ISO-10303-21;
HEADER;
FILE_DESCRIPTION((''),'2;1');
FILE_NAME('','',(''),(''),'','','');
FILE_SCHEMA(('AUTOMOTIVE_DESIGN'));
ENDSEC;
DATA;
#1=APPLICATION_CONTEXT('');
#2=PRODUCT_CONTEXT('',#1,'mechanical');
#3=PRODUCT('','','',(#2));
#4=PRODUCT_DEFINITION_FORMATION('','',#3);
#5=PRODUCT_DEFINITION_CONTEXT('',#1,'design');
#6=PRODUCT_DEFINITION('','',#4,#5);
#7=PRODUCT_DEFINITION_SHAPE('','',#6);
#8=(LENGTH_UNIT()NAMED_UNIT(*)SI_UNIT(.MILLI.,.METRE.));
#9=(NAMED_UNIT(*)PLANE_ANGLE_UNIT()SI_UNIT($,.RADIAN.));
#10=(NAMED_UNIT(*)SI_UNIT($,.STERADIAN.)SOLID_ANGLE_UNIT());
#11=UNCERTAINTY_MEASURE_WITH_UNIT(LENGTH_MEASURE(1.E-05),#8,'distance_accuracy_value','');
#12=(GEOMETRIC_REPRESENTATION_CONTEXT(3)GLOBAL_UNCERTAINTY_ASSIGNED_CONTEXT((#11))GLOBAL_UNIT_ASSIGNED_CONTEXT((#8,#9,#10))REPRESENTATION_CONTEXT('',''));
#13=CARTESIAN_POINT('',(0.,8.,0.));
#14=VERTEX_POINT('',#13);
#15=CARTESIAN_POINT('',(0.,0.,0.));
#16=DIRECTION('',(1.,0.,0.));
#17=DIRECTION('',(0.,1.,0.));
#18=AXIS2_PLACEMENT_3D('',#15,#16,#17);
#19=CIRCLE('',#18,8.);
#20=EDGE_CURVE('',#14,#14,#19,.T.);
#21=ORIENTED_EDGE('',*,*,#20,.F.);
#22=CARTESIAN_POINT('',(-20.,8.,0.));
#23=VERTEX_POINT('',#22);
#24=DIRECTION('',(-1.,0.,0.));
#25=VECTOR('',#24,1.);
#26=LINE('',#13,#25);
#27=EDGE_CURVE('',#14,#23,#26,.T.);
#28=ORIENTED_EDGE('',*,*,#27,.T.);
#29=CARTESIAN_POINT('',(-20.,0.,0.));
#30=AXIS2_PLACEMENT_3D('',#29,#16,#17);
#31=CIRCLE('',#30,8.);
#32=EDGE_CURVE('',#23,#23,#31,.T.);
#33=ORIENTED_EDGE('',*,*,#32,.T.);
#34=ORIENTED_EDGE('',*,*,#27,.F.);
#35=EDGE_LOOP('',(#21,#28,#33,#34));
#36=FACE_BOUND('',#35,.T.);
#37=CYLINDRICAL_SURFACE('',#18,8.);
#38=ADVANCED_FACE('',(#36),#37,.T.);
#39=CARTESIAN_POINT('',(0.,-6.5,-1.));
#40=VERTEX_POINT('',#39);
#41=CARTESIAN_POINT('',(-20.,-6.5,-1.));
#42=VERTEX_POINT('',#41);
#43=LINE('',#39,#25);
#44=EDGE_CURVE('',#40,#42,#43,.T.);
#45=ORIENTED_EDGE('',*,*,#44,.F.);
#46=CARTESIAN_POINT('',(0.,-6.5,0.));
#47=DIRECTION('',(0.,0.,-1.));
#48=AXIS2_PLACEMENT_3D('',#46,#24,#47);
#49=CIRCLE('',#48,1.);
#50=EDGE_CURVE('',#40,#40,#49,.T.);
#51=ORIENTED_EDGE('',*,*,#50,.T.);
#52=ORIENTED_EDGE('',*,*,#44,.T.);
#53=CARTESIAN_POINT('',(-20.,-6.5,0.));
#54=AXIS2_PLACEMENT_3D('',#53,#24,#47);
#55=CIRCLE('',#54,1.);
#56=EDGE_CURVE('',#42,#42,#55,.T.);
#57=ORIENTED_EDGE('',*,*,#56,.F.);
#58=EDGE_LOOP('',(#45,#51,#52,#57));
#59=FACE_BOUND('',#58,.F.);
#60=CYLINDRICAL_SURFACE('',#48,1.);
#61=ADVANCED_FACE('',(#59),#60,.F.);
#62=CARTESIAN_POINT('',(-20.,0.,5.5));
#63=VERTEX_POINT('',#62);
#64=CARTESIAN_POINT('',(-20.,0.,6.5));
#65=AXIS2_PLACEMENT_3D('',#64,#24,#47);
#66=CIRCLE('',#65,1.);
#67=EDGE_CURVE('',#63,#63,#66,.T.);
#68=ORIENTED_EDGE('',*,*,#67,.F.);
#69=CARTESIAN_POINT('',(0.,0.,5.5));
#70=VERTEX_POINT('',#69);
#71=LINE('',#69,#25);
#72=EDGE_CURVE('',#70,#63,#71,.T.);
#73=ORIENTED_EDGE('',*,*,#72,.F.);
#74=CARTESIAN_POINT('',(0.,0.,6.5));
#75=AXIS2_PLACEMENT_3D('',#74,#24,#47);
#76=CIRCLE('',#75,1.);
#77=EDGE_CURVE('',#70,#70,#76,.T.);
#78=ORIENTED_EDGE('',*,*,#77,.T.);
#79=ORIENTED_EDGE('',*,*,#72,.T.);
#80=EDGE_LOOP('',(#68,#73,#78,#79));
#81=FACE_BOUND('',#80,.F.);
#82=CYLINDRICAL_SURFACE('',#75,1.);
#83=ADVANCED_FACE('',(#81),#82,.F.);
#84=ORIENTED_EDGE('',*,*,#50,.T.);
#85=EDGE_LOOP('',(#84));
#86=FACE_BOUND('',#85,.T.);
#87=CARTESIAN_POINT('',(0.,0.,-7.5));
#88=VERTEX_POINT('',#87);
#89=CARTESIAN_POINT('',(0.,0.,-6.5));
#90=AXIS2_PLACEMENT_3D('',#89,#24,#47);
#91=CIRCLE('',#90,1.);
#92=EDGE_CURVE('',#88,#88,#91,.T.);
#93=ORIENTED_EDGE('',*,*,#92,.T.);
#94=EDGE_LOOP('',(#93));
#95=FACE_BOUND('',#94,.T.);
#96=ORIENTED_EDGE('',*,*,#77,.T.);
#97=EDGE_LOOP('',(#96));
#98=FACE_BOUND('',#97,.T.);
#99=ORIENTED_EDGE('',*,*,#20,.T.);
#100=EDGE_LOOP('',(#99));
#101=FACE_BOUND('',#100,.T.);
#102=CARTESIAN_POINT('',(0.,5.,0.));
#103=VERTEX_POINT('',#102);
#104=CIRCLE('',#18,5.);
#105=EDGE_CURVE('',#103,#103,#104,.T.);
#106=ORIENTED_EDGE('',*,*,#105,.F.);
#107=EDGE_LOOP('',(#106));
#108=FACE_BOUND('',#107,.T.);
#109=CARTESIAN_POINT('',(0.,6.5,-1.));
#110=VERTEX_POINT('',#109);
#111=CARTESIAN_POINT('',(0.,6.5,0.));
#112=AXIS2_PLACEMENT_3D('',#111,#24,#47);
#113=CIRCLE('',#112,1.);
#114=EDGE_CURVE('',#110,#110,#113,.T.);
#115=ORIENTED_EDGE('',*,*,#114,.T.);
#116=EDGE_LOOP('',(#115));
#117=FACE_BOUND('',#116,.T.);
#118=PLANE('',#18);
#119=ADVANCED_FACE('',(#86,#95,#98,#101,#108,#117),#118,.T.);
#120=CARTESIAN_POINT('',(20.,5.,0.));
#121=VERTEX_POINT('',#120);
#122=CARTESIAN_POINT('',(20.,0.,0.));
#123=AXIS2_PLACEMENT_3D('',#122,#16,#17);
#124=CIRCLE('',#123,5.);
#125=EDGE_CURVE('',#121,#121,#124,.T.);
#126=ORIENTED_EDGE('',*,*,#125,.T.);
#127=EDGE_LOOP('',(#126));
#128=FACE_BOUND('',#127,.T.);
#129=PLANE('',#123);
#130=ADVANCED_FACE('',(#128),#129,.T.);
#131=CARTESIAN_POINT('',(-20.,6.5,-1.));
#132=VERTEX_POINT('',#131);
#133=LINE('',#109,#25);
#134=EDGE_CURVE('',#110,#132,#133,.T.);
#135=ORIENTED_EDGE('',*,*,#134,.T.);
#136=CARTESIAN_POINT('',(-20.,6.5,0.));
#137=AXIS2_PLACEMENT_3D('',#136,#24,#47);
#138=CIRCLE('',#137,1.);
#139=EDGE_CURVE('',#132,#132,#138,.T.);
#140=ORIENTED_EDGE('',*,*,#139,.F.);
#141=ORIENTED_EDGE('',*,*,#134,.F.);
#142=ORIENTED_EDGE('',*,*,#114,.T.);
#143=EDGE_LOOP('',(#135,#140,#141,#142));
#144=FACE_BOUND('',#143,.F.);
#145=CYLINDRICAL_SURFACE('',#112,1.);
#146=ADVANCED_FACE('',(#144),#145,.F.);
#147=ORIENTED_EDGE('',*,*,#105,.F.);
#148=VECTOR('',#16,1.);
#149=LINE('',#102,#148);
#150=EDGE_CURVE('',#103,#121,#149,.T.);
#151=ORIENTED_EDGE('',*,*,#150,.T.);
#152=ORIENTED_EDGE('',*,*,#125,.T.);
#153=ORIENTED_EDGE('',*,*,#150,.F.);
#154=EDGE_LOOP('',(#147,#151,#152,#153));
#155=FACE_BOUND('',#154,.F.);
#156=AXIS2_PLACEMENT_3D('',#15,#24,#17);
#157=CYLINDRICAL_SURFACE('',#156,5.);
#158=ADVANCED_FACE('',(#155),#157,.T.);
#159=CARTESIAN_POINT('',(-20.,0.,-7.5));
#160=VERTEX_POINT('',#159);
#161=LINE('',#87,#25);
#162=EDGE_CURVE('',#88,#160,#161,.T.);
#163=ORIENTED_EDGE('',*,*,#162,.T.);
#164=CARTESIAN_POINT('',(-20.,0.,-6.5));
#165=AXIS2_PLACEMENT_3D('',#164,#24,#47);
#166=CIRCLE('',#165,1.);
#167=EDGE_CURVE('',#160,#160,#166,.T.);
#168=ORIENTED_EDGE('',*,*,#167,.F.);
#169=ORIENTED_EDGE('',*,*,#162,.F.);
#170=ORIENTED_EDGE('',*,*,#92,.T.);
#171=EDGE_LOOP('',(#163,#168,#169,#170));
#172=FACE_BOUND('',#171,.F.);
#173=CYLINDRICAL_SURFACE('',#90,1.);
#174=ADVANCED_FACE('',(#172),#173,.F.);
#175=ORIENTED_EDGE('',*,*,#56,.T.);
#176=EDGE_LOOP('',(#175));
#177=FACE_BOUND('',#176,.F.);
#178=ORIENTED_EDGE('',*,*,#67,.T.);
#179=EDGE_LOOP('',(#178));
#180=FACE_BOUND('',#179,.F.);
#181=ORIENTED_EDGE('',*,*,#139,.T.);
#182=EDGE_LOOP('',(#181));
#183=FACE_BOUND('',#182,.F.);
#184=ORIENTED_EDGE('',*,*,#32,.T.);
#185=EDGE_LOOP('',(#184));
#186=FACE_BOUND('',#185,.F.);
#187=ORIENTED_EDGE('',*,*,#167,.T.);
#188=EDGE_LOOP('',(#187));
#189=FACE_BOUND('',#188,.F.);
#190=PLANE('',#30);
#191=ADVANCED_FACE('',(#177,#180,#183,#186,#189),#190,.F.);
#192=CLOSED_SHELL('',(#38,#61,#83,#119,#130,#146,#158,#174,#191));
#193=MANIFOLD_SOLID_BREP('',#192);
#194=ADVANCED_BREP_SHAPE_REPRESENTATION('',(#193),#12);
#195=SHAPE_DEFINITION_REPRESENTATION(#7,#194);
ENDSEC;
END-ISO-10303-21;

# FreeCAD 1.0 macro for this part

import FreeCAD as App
import Part
import Sketcher
Q = App.Units.Quantity

doc = App.newDocument("Part")
params = doc.addObject("Spreadsheet::Sheet", "Params")
for row, (alias, value) in enumerate([
    ("sketch1_diameter", "16 mm"),
    ("pad1_length", "20 mm"),
    ("sketch2_diameter", "10 mm"),
    ("pad2_length", "20 mm"),
    ("sketch3_diameter", "2 mm"),
    ("hole_diameter", "2 mm"),
], start=1):
    params.set(f"A{row}", alias)
    params.set(f"B{row}", "=" + value)
    params.setAlias(f"B{row}", alias)

body = doc.addObject("PartDesign::Body", "Body")

# Sketch on YZ plane
sketch1 = body.newObject("Sketcher::SketchObject", "Sketch")
sketch1.AttachmentSupport = (doc.getObject("YZ_Plane"), [""])
sketch1.MapMode = "FlatFace"
sketch1.addGeometry(Part.Circle(App.Vector(0, 0, 0), App.Vector(0, 0, 1), 8), False)
sketch1.addConstraint([
    Sketcher.Constraint("Coincident", 0, 3, -1, 1),
    Sketcher.Constraint("Diameter", 0, Q("16 mm")),
])
sketch1.setExpression("Constraints[1]", "Params.sketch1_diameter")
pad1 = body.newObject("PartDesign::Pad", "Pad")
pad1.Profile = sketch1
pad1.setExpression("Length", "Params.pad1_length")
pad1.Reversed = True

# Sketch on YZ plane
sketch2 = body.newObject("Sketcher::SketchObject", "Sketch001")
sketch2.AttachmentSupport = (doc.getObject("YZ_Plane"), [""])
sketch2.MapMode = "FlatFace"
sketch2.addGeometry(Part.Circle(App.Vector(0, 0, 0), App.Vector(0, 0, 1), 5), False)
sketch2.addConstraint([
    Sketcher.Constraint("Coincident", 0, 3, -1, 1),
    Sketcher.Constraint("Diameter", 0, Q("10 mm")),
])
sketch2.setExpression("Constraints[1]", "Params.sketch2_diameter")
pad2 = body.newObject("PartDesign::Pad", "Pad001")
pad2.Profile = sketch2
pad2.setExpression("Length", "Params.pad2_length")

# Sketch on YZ plane
sketch3 = body.newObject("Sketcher::SketchObject", "Sketch002")
sketch3.AttachmentSupport = (doc.getObject("YZ_Plane"), [""])
sketch3.MapMode = "FlatFace"
sketch3.addGeometry([
    Part.Circle(App.Vector(6.5, 0, 0), App.Vector(0, 0, 1), 1),
    Part.Circle(App.Vector(0, 6.5, 0), App.Vector(0, 0, 1), 1),
    Part.Circle(App.Vector(-6.5, 0, 0), App.Vector(0, 0, 1), 1),
    Part.Circle(App.Vector(0, -6.5, 0), App.Vector(0, 0, 1), 1),
], False)
sketch3.addConstraint([
    Sketcher.Constraint("Equal", 0, 1),
    Sketcher.Constraint("Equal", 1, 2),
    Sketcher.Constraint("Equal", 2, 3),
    Sketcher.Constraint("Symmetric", 0, 3, 2, 3, -1, 1),
    Sketcher.Constraint("Symmetric", 1, 3, 3, 3, -1, 1),
    Sketcher.Constraint("PointOnObject", 0, 3, -1),
    Sketcher.Constraint("PointOnObject", 1, 3, -2),
    Sketcher.Constraint("Diameter", 0, Q("2 mm")),
    Sketcher.Constraint("DistanceX", 2, 3, 0, 3, Q("13 mm")),
    Sketcher.Constraint("DistanceY", 3, 3, 1, 3, Q("13 mm")),
])
sketch3.setExpression("Constraints[7]", "Params.sketch3_diameter")
doc.recompute()
hole = body.newObject("PartDesign::Hole", "Hole")
hole.Profile = sketch3
hole.ThreadType = "None"
hole.setExpression("Diameter", "Params.hole_diameter")
hole.DepthType = "ThroughAll"

doc.recompute()
